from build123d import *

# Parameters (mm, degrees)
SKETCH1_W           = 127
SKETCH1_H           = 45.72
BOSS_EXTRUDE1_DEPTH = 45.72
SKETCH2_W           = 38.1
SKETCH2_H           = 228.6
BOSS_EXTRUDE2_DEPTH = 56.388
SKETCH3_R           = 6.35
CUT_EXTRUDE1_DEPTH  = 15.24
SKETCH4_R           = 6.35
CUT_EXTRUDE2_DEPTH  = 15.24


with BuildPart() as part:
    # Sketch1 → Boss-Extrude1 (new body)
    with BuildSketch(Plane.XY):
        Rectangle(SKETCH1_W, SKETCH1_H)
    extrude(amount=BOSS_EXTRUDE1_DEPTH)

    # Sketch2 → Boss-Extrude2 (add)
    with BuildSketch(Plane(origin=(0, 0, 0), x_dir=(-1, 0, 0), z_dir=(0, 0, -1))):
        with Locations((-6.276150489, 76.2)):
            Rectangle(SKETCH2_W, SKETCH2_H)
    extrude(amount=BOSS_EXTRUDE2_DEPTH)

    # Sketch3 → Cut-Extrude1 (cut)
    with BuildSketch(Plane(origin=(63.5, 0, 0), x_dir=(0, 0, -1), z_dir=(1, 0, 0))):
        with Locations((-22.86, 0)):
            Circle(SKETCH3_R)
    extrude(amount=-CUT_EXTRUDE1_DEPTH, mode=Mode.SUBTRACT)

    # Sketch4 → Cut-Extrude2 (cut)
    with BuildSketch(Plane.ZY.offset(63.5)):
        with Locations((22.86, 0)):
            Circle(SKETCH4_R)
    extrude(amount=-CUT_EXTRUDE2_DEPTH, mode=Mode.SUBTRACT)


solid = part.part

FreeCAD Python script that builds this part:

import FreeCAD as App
import Part
import Sketcher
from FreeCAD import Vector
Q = App.Units.Quantity


def add_polygon(sketch, points):
    """Adds a closed chain of lines whose ends are joined by coincident constraints."""
    first, n = sketch.GeometryCount, len(points)
    for a, b in zip(points, points[1:] + points[:1]):
        sketch.addGeometry(Part.LineSegment(App.Vector(*a, 0), App.Vector(*b, 0)), False)
    for i in range(n):
        sketch.addConstraint(Sketcher.Constraint("Coincident", first + i, 2, first + (i + 1) % n, 1))

doc = App.newDocument("Part")
params = doc.addObject("Spreadsheet::Sheet", "Params")
for row, (alias, value) in enumerate([
    ("sketch1_width", "5 in"),
    ("sketch1_height", "1.8 in"),
    ("pad1_length", "1.8 in"),
    ("sketch2_height", "9 in"),
    ("sketch2_width", "1.5 in"),
    ("pad2_length", "2.22 in"),
    ("sketch3_diameter", "0.5 in"),
    ("pocket1_length", "0.6 in"),
    ("sketch4_diameter", "0.5 in"),
    ("pocket2_length", "0.6 in"),
], start=1):
    params.set(f"A{row}", alias)
    params.set(f"B{row}", "=" + value)
    params.setAlias(f"B{row}", alias)

body = doc.addObject("PartDesign::Body", "Body")

# Sketch on XY plane
sketch1 = body.newObject("Sketcher::SketchObject", "Sketch")
sketch1.AttachmentSupport = (doc.getObject("XY_Plane"), [""])
sketch1.MapMode = "FlatFace"
add_polygon(sketch1, [(-64, 23), (-64, -23), (64, -23), (64, 23)])  # lines 0-3
sketch1.addConstraint(Sketcher.Constraint("Vertical", 0))
sketch1.addConstraint(Sketcher.Constraint("Horizontal", 1))
sketch1.addConstraint(Sketcher.Constraint("Vertical", 2))
sketch1.addConstraint(Sketcher.Constraint("Horizontal", 3))
sketch1.addConstraint(Sketcher.Constraint("Symmetric", 0, 2, 2, 2, -1, 1))
sketch1.addConstraint(Sketcher.Constraint("DistanceX", 1, 1, 1, 2, Q("5 in")))
sketch1.addConstraint(Sketcher.Constraint("DistanceY", 0, 2, 0, 1, Q("1.8 in")))
sketch1.setExpression("Constraints[9]", "Params.sketch1_width")
sketch1.setExpression("Constraints[10]", "Params.sketch1_height")
pad1 = body.newObject("PartDesign::Pad", "Pad")
pad1.Profile = sketch1
pad1.setExpression("Length", "Params.pad1_length")

# Sketch on XY plane
sketch2 = body.newObject("Sketcher::SketchObject", "Sketch001")
sketch2.AttachmentSupport = (doc.getObject("XY_Plane"), [""])
sketch2.MapMode = "FlatFace"
add_polygon(sketch2, [(25, 190), (25, -38), (-13, -38), (-13, 190)])  # lines 0-3
sketch2.addConstraint(Sketcher.Constraint("Vertical", 0))
sketch2.addConstraint(Sketcher.Constraint("Horizontal", 1))
sketch2.addConstraint(Sketcher.Constraint("Vertical", 2))
sketch2.addConstraint(Sketcher.Constraint("Horizontal", 3))
sketch2.addConstraint(Sketcher.Constraint("DistanceY", 0, 2, 0, 1, Q("9 in")))
sketch2.addConstraint(Sketcher.Constraint("DistanceX", 1, 2, 1, 1, Q("1.5 in")))
sketch2.addConstraint(Sketcher.Constraint("DistanceY", 0, 2, -1, 1, Q("1.5 in")))
sketch2.addConstraint(Sketcher.Constraint("DistanceX", -1, 1, 0, 2, 25.32615))
sketch2.setExpression("Constraints[8]", "Params.sketch2_height")
sketch2.setExpression("Constraints[9]", "Params.sketch2_width")
pad2 = body.newObject("PartDesign::Pad", "Pad001")
pad2.Profile = sketch2
pad2.setExpression("Length", "Params.pad2_length")
pad2.Reversed = True

# Sketch on YZ plane
sketch3 = body.newObject("Sketcher::SketchObject", "Sketch002")
sketch3.AttachmentSupport = (doc.getObject("YZ_Plane"), [""])
sketch3.MapMode = "FlatFace"
sketch3.AttachmentOffset = App.Placement(Vector(0, 0, 2.5 * 25.4), App.Rotation())
sketch3.addGeometry(Part.Circle(Vector(0, 23, 0), Vector(0, 0, 1), 6), False)
sketch3.addConstraint(Sketcher.Constraint("PointOnObject", 0, 3, -2))
sketch3.addConstraint(Sketcher.Constraint("Diameter", 0, Q("0.5 in")))
sketch3.addConstraint(Sketcher.Constraint("DistanceY", -1, 1, 0, 3, Q("0.9 in")))
sketch3.setExpression("Constraints[1]", "Params.sketch3_diameter")
pocket1 = body.newObject("PartDesign::Pocket", "Pocket")
pocket1.Profile = sketch3
pocket1.setExpression("Length", "Params.pocket1_length")

# Sketch on YZ plane
sketch4 = body.newObject("Sketcher::SketchObject", "Sketch003")
sketch4.AttachmentSupport = (doc.getObject("YZ_Plane"), [""])
sketch4.MapMode = "FlatFace"
sketch4.AttachmentOffset = App.Placement(Vector(0, 0, -2.5 * 25.4), App.Rotation())
sketch4.addGeometry(Part.Circle(Vector(0, 23, 0), Vector(0, 0, 1), 6), False)
sketch4.addConstraint(Sketcher.Constraint("PointOnObject", 0, 3, -2))
sketch4.addConstraint(Sketcher.Constraint("Diameter", 0, Q("0.5 in")))
sketch4.addConstraint(Sketcher.Constraint("DistanceY", -1, 1, 0, 3, Q("0.9 in")))
sketch4.setExpression("Constraints[1]", "Params.sketch4_diameter")
pocket2 = body.newObject("PartDesign::Pocket", "Pocket001")
pocket2.Profile = sketch4
pocket2.setExpression("Length", "Params.pocket2_length")
pocket2.Reversed = True

doc.recompute()
